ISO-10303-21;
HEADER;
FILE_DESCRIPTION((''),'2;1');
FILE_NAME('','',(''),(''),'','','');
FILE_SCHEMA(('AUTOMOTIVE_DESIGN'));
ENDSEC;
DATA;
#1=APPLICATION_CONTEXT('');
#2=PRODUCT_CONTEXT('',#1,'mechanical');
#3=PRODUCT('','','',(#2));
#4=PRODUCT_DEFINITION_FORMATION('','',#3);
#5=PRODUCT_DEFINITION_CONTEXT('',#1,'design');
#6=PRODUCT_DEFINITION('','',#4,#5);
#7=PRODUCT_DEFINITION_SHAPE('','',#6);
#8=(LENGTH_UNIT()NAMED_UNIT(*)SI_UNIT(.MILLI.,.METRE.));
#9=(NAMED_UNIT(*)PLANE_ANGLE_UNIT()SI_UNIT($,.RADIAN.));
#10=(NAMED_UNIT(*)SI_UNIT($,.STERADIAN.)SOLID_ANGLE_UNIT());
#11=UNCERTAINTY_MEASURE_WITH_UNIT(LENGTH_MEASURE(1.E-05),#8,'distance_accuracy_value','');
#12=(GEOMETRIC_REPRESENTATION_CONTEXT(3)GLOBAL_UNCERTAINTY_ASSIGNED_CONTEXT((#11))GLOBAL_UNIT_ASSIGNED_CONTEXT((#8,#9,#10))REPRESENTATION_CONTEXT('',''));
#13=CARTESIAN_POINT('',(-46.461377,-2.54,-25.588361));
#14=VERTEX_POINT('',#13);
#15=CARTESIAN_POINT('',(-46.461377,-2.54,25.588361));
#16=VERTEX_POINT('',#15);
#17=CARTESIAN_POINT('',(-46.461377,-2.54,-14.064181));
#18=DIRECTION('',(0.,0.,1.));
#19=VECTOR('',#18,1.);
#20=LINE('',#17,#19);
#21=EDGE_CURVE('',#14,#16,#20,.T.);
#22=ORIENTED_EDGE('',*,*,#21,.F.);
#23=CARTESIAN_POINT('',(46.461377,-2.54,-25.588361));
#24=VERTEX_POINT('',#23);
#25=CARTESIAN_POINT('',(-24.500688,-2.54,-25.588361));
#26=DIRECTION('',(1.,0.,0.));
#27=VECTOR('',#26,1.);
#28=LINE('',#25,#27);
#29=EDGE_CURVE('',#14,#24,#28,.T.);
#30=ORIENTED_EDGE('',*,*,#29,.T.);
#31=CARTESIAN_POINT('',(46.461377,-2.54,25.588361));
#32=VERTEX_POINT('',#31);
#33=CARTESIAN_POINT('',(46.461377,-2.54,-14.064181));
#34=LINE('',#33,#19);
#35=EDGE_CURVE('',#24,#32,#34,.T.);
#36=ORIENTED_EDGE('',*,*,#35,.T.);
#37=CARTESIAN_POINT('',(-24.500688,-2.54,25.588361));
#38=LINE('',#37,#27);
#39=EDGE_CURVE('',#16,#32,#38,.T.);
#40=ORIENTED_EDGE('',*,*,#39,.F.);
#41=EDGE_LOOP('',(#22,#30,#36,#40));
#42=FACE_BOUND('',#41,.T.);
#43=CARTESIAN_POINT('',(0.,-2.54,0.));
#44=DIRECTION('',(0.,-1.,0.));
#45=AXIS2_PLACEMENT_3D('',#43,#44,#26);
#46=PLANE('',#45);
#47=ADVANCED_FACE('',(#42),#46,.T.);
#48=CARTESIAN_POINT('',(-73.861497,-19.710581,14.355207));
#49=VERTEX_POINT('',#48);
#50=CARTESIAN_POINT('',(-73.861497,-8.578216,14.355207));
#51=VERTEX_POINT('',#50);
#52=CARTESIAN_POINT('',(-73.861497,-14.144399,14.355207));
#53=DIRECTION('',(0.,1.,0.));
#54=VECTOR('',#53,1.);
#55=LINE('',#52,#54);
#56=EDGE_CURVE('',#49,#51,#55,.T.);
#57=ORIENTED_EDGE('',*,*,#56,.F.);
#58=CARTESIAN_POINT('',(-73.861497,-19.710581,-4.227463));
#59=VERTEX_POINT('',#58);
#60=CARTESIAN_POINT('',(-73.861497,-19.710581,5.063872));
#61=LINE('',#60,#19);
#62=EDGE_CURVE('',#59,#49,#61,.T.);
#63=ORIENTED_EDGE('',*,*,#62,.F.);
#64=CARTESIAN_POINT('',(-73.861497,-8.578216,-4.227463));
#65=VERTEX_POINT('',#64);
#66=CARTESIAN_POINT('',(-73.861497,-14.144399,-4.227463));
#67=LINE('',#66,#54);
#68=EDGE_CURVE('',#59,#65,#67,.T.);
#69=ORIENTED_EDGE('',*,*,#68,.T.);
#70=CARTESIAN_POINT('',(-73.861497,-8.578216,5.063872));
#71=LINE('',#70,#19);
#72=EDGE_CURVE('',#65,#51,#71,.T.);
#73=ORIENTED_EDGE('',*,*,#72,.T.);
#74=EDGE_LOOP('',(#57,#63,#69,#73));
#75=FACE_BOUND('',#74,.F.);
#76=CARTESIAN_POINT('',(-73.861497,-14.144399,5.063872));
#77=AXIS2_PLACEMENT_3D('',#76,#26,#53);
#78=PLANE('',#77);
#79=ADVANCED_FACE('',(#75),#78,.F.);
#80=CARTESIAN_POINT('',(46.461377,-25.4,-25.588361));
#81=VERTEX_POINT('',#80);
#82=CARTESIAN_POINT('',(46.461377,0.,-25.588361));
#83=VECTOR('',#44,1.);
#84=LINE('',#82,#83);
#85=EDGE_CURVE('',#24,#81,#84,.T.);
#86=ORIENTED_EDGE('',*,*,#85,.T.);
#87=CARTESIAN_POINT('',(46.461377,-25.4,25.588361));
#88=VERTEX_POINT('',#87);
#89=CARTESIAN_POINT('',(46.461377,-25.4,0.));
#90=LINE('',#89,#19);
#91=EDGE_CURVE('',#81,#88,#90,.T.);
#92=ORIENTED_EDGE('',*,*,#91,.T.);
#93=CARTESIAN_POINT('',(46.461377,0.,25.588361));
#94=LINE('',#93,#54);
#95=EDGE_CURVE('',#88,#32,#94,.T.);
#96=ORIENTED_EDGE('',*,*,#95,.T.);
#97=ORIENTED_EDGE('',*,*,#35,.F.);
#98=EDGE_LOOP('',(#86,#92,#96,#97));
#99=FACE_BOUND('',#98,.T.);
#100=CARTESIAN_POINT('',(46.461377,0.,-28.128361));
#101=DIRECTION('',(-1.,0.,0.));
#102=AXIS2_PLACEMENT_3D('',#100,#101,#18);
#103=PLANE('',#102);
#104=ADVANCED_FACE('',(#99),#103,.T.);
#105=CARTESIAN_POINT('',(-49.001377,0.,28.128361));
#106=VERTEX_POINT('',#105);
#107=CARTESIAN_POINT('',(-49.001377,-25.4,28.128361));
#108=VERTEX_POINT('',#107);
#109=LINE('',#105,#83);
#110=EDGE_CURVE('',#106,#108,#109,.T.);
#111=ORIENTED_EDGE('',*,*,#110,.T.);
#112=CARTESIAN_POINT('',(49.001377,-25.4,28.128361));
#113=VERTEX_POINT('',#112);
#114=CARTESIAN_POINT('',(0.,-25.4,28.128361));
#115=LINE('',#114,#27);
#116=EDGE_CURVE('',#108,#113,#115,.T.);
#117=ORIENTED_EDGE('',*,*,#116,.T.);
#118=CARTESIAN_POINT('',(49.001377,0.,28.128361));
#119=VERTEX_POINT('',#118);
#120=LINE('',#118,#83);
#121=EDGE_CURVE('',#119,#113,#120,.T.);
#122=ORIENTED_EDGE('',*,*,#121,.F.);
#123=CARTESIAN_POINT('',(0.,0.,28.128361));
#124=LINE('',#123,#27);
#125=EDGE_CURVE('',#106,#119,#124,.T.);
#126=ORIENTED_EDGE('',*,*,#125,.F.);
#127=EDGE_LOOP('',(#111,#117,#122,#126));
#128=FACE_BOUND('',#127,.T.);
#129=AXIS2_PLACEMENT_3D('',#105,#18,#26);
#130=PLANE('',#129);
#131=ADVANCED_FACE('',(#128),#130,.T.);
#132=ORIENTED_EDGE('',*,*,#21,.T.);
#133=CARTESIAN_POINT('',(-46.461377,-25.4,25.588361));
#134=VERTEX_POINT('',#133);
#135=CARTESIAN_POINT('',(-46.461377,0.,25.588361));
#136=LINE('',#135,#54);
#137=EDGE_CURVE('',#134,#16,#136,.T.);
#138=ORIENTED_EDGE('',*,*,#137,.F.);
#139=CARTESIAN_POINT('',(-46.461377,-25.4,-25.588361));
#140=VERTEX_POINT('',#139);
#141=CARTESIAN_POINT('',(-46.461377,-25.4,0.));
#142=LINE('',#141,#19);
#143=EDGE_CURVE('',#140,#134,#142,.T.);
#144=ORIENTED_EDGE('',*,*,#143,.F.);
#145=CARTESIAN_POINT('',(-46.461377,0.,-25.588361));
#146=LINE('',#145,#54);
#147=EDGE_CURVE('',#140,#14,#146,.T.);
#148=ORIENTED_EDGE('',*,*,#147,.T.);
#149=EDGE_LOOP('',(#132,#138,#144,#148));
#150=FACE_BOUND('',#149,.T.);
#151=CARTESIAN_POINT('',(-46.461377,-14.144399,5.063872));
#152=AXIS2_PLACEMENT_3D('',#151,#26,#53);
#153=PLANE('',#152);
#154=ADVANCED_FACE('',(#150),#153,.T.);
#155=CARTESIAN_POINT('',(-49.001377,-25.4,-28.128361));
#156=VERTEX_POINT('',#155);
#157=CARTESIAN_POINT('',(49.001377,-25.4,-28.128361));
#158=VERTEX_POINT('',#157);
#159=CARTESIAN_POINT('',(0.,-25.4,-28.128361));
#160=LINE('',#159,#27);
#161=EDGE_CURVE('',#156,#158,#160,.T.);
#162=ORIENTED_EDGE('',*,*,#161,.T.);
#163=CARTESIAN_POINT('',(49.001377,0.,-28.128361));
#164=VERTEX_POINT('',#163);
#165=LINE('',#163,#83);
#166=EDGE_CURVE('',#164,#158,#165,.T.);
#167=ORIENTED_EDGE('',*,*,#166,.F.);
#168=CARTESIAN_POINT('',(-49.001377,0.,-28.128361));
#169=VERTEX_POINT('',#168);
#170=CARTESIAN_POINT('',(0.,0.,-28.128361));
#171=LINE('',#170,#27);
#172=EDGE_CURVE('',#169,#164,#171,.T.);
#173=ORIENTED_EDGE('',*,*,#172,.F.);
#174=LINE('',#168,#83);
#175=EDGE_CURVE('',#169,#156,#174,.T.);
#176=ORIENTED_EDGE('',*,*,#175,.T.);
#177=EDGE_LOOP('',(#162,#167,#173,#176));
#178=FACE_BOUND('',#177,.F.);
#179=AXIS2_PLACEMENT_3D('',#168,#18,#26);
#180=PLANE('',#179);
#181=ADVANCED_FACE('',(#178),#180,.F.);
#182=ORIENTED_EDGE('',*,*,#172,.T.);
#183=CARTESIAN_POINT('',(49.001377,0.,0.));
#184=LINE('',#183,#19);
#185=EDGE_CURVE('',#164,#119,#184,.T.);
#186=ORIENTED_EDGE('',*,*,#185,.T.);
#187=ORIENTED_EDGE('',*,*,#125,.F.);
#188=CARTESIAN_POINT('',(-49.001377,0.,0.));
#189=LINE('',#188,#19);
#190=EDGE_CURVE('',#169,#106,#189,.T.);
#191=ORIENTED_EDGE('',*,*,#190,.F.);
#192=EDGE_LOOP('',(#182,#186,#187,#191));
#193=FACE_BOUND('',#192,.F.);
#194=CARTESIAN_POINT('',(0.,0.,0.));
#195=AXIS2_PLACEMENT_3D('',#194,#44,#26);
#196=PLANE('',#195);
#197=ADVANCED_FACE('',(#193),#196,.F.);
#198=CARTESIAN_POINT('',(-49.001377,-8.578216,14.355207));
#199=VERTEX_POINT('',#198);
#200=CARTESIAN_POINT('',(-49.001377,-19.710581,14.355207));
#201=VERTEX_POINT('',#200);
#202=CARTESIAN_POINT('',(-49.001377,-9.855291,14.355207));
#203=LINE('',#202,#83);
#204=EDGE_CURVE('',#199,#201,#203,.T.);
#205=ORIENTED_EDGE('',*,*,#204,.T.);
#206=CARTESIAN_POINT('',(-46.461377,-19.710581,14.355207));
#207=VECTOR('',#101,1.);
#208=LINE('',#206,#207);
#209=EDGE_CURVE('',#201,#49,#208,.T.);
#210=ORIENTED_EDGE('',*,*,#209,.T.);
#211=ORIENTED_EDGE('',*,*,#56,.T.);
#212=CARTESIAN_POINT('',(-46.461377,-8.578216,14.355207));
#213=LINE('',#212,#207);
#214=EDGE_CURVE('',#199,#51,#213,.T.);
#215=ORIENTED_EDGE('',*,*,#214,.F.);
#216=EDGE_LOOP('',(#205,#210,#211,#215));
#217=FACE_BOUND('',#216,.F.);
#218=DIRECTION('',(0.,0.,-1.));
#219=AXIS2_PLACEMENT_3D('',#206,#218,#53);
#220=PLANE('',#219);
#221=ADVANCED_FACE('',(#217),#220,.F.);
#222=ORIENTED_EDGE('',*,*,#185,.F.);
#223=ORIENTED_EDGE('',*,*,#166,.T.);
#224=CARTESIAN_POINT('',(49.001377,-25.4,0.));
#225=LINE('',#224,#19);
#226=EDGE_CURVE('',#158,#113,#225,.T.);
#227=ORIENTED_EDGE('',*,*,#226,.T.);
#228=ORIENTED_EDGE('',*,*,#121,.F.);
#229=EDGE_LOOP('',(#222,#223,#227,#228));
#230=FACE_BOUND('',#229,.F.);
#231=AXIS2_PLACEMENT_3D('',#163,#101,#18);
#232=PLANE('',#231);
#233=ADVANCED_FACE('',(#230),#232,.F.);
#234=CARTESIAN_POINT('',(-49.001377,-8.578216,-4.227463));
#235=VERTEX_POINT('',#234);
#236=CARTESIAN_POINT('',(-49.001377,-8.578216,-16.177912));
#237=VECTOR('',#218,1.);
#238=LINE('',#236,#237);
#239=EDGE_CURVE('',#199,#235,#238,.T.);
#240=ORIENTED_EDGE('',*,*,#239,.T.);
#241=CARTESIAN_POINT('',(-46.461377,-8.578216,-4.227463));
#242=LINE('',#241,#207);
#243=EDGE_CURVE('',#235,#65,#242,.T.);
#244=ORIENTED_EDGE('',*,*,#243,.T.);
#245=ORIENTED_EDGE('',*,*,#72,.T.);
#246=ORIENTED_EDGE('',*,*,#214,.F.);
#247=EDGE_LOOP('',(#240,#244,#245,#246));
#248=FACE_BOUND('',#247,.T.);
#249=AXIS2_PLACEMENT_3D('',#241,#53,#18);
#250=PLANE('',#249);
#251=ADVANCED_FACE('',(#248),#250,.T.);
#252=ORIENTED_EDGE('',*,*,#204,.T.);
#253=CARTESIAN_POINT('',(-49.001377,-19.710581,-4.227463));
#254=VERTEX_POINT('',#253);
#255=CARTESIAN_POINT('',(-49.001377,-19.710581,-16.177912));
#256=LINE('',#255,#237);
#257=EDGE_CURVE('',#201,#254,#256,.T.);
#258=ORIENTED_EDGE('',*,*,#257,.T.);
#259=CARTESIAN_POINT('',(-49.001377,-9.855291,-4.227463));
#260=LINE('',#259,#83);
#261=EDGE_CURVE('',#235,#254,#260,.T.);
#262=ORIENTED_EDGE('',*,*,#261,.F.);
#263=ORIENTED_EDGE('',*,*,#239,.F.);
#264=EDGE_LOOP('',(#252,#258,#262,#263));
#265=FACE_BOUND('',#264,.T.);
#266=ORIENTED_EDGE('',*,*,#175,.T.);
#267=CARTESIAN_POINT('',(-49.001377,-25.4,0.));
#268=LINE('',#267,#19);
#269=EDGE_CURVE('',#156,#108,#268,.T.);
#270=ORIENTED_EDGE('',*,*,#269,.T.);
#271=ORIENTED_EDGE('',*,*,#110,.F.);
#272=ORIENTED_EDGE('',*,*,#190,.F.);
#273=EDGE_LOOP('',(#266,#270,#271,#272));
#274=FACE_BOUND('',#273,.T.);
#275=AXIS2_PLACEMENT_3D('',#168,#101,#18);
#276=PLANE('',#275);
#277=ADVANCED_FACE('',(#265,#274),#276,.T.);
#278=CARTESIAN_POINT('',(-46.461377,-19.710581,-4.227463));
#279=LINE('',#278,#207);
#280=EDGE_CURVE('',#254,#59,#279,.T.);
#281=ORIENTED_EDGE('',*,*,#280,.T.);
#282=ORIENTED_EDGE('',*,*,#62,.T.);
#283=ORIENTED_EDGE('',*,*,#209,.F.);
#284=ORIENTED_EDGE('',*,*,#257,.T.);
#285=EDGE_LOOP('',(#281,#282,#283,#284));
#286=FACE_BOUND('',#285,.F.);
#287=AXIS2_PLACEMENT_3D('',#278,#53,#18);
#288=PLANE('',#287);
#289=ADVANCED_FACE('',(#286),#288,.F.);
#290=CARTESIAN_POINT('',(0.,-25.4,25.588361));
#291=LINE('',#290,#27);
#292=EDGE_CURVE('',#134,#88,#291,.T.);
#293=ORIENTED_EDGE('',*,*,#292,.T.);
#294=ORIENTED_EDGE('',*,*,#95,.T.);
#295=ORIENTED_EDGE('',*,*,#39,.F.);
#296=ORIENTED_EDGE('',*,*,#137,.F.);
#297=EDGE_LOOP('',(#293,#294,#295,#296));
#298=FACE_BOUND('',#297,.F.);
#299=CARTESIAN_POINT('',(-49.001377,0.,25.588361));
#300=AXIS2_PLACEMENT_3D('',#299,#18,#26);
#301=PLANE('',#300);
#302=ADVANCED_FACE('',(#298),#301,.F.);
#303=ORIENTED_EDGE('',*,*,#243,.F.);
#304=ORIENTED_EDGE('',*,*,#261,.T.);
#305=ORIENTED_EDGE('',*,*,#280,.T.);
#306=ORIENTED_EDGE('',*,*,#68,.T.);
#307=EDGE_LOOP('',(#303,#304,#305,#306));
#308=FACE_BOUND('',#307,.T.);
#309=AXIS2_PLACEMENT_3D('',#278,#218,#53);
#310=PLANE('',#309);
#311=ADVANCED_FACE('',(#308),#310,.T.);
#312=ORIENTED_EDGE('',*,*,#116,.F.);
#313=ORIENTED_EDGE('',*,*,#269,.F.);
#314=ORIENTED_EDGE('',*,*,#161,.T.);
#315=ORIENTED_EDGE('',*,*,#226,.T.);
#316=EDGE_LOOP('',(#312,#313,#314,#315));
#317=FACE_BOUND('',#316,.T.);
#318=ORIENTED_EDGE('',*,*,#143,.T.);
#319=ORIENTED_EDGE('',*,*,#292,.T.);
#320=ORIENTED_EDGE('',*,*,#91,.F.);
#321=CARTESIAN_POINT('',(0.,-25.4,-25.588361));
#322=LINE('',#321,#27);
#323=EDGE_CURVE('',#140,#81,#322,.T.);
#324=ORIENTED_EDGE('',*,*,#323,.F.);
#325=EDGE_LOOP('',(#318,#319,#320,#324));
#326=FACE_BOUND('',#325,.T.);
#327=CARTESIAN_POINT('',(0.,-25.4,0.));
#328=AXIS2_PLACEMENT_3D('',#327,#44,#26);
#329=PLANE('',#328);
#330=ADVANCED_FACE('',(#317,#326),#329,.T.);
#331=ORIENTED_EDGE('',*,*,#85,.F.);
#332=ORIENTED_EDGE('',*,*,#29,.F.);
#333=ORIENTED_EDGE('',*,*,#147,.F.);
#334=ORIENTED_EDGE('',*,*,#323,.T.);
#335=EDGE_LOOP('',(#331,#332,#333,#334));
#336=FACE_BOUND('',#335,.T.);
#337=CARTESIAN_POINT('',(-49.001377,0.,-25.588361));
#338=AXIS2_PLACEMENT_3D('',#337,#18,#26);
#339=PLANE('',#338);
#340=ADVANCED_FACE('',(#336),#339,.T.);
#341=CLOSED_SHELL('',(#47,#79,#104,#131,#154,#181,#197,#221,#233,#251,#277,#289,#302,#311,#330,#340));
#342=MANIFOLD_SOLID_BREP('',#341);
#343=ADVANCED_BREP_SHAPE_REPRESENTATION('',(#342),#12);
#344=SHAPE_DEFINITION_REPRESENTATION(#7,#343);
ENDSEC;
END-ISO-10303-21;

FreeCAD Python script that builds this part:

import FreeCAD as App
import Part
import Sketcher
from FreeCAD import Vector
Q = App.Units.Quantity


def faces_at(feature, points):
    """Names of the faces that lie closest to the given points."""
    faces = feature.Shape.Faces
    near = lambda p: min(range(len(faces)), key=lambda i: faces[i].distToShape(Part.Vertex(*p))[0])
    return sorted({f"Face{near(p) + 1}" for p in points})


def add_polygon(sketch, points):
    """Adds a closed chain of lines whose ends are joined by coincident constraints."""
    first, n = sketch.GeometryCount, len(points)
    for a, b in zip(points, points[1:] + points[:1]):
        sketch.addGeometry(Part.LineSegment(App.Vector(*a, 0), App.Vector(*b, 0)), False)
    for i in range(n):
        sketch.addConstraint(Sketcher.Constraint("Coincident", first + i, 2, first + (i + 1) % n, 1))

doc = App.newDocument("Part")
body = doc.addObject("PartDesign::Body", "Body")

sketch1 = body.newObject("Sketcher::SketchObject", "Sketch")
sketch1.AttachmentSupport = (doc.getObject("XZ_Plane"), [""])
sketch1.MapMode = "FlatFace"
add_polygon(sketch1, [(-49.001377, 28.128361), (-49.001377, -28.128361), (49.001377, -28.128361), (49.001377, 28.128361)])
sketch1.addConstraint([
    Sketcher.Constraint("Vertical", 0),
    Sketcher.Constraint("Horizontal", 1),
    Sketcher.Constraint("Vertical", 2),
    Sketcher.Constraint("Horizontal", 3),
    Sketcher.Constraint("Symmetric", 0, 2, 2, 2, -1, 1),
    Sketcher.Constraint("DistanceX", 1, 1, 1, 2, 98.002754),
    Sketcher.Constraint("DistanceY", 0, 2, 0, 1, 56.256722),
])
pad1 = body.newObject("PartDesign::Pad", "Pad")
pad1.Profile = sketch1
pad1.Length = Q("1 in")
doc.recompute()

thickness = body.newObject("PartDesign::Thickness", "Thickness")
thickness.Base = (pad1, faces_at(pad1, [(0, -25.4, 0)]))
thickness.Value = Q("0.1 in")
thickness.Reversed = True
thickness.Join = "Arc"

sketch2 = body.newObject("Sketcher::SketchObject", "Sketch001")
sketch2.AttachmentSupport = (doc.getObject("YZ_Plane"), [""])
sketch2.MapMode = "FlatFace"
sketch2.AttachmentOffset = App.Placement(Vector(0, 0, -46.461377), App.Rotation())
add_polygon(sketch2, [(-19.710581, 14.355207), (-19.710581, -4.227463), (-8.578216, -4.227463), (-8.578216, 14.355207)])
sketch2.addConstraint([
    Sketcher.Constraint("Vertical", 0),
    Sketcher.Constraint("Horizontal", 1),
    Sketcher.Constraint("Vertical", 2),
    Sketcher.Constraint("Horizontal", 3),
    Sketcher.Constraint("DistanceY", 0, 2, 0, 1, 18.58267),
    Sketcher.Constraint("DistanceX", 1, 1, 1, 2, 11.132365),
    Sketcher.Constraint("DistanceX", 0, 2, -1, 1, 19.710581),
    Sketcher.Constraint("DistanceY", 0, 2, -1, 1, 4.227463),
])
pad2 = body.newObject("PartDesign::Pad", "Pad001")
pad2.Profile = sketch2
pad2.Length = 27.40012
pad2.Reversed = True

doc.recompute()
